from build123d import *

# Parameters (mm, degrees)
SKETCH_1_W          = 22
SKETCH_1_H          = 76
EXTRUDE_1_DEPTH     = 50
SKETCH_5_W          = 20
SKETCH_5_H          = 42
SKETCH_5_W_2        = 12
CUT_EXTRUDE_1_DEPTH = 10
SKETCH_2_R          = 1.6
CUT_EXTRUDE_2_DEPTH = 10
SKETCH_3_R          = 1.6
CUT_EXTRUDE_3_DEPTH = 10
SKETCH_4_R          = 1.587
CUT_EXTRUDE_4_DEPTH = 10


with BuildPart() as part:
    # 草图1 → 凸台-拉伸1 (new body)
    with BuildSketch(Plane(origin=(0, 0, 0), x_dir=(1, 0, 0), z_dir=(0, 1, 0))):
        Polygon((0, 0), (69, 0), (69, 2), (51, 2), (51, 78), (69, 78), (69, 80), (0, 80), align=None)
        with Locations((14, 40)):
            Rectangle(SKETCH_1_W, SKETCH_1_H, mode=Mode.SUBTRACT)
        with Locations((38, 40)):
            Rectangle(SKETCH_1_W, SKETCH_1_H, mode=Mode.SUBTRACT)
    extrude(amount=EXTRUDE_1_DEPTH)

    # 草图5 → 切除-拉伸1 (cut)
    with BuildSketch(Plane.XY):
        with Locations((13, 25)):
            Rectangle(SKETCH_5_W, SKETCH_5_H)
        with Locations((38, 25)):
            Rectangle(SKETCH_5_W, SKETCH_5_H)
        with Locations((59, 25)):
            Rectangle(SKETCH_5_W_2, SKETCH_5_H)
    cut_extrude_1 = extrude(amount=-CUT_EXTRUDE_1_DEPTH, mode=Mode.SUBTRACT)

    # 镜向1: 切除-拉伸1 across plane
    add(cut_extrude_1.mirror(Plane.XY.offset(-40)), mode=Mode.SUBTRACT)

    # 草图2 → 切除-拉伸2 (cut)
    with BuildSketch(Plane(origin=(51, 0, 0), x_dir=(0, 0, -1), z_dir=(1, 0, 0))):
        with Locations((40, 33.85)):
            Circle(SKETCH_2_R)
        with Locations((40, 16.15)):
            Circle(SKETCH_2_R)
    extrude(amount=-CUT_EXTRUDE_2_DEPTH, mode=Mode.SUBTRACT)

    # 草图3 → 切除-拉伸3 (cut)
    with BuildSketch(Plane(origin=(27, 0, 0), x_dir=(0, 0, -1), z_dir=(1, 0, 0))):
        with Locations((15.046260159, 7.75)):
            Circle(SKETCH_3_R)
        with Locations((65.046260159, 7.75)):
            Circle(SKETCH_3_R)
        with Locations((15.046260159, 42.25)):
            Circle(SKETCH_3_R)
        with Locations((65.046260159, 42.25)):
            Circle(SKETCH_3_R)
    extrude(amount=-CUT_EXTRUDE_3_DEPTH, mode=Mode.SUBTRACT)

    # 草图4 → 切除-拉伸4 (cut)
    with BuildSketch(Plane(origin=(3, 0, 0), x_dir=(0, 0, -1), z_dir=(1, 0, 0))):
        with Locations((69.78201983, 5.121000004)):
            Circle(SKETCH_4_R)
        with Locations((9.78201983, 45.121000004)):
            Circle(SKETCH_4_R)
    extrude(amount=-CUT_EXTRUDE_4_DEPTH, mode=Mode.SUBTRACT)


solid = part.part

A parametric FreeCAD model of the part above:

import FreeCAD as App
import Part
import Sketcher
from FreeCAD import Vector
Q = App.Units.Quantity

doc = App.newDocument("Part")
params = doc.addObject("Spreadsheet::Sheet", "Params")
for row, (alias, value) in enumerate([
    ("sketch1_width", "69 mm"),
    ("sketch1_width2", "18 mm"),
    ("sketch1_width3", "22 mm"),
    ("sketch1_height", "2 mm"),
    ("sketch1_height2", "76 mm"),
    ("pad1_length", "50 mm"),
    ("sketch2_width", "20 mm"),
    ("sketch2_width2", "12 mm"),
    ("sketch2_height", "42 mm"),
    ("pocket1_length", "10 mm"),
    ("sketch3_diameter", "3.2 mm"),
    ("pocket2_length", "10 mm"),
    ("sketch4_diameter", "3.2 mm"),
    ("pocket3_length", "10 mm"),
    ("pocket4_length", "10 mm"),
], start=1):
    params.set(f"A{row}", alias)
    params.set(f"B{row}", "=" + value)
    params.setAlias(f"B{row}", alias)

body = doc.addObject("PartDesign::Body", "Body")

# Sketch on XZ plane
sketch1 = body.newObject("Sketcher::SketchObject", "Sketch")
sketch1.AttachmentSupport = (doc.getObject("XZ_Plane"), [""])
sketch1.MapMode = "FlatFace"
sketch1.addGeometry([
    Part.LineSegment(Vector(0, 0, 0), Vector(69, 0, 0)),  # 0
    Part.LineSegment(Vector(69, 0, 0), Vector(69, -2, 0)),  # 1
    Part.LineSegment(Vector(69, -2, 0), Vector(51, -2, 0)),  # 2
    Part.LineSegment(Vector(51, -2, 0), Vector(51, -78, 0)),  # 3
    Part.LineSegment(Vector(51, -78, 0), Vector(69, -78, 0)),  # 4
    Part.LineSegment(Vector(69, -78, 0), Vector(69, -80, 0)),  # 5
    Part.LineSegment(Vector(69, -80, 0), Vector(0, -80, 0)),  # 6
    Part.LineSegment(Vector(0, -80, 0), Vector(0, 0, 0)),  # 7
    Part.LineSegment(Vector(25, -2, 0), Vector(3, -2, 0)),  # 8
    Part.LineSegment(Vector(3, -2, 0), Vector(3, -78, 0)),  # 9
    Part.LineSegment(Vector(3, -78, 0), Vector(25, -78, 0)),  # 10
    Part.LineSegment(Vector(25, -78, 0), Vector(25, -2, 0)),  # 11
    Part.LineSegment(Vector(49, -2, 0), Vector(27, -2, 0)),  # 12
    Part.LineSegment(Vector(27, -2, 0), Vector(27, -78, 0)),  # 13
    Part.LineSegment(Vector(27, -78, 0), Vector(49, -78, 0)),  # 14
    Part.LineSegment(Vector(49, -78, 0), Vector(49, -2, 0)),  # 15
], False)
sketch1.addConstraint([
    Sketcher.Constraint("Coincident", 0, 2, 1, 1),
    Sketcher.Constraint("Coincident", 1, 2, 2, 1),
    Sketcher.Constraint("Coincident", 2, 2, 3, 1),
    Sketcher.Constraint("Coincident", 3, 2, 4, 1),
    Sketcher.Constraint("Coincident", 4, 2, 5, 1),
    Sketcher.Constraint("Coincident", 5, 2, 6, 1),
    Sketcher.Constraint("Coincident", 6, 2, 7, 1),
    Sketcher.Constraint("Coincident", 7, 2, 0, 1),
    Sketcher.Constraint("Coincident", 8, 2, 9, 1),
    Sketcher.Constraint("Coincident", 9, 2, 10, 1),
    Sketcher.Constraint("Coincident", 10, 2, 11, 1),
    Sketcher.Constraint("Coincident", 11, 2, 8, 1),
    Sketcher.Constraint("Coincident", 12, 2, 13, 1),
    Sketcher.Constraint("Coincident", 13, 2, 14, 1),
    Sketcher.Constraint("Coincident", 14, 2, 15, 1),
    Sketcher.Constraint("Coincident", 15, 2, 12, 1),
    Sketcher.Constraint("Horizontal", 0),
    Sketcher.Constraint("Vertical", 1),
    Sketcher.Constraint("Horizontal", 2),
    Sketcher.Constraint("Vertical", 3),
    Sketcher.Constraint("Horizontal", 4),
    Sketcher.Constraint("Vertical", 5),
    Sketcher.Constraint("Horizontal", 6),
    Sketcher.Constraint("Vertical", 7),
    Sketcher.Constraint("Horizontal", 8),
    Sketcher.Constraint("Vertical", 9),
    Sketcher.Constraint("Horizontal", 10),
    Sketcher.Constraint("Vertical", 11),
    Sketcher.Constraint("Horizontal", 12),
    Sketcher.Constraint("Vertical", 13),
    Sketcher.Constraint("Horizontal", 14),
    Sketcher.Constraint("Vertical", 15),
    Sketcher.Constraint("Coincident", 7, 2, -1, 1),
    Sketcher.Constraint("Horizontal", 2, 2, 8, 2),
    Sketcher.Constraint("Horizontal", 4, 2, 9, 2),
    Sketcher.Constraint("Horizontal", 11, 2, 12, 2),
    Sketcher.Constraint("Horizontal", 10, 2, 13, 2),
    Sketcher.Constraint("Vertical", 1, 2, 4, 2),
    Sketcher.Constraint("Equal", 10, 12),
    Sketcher.Constraint("Equal", 1, 5),
    Sketcher.Constraint("DistanceX", 0, 1, 0, 2, Q("69 mm")),
    Sketcher.Constraint("DistanceX", 2, 2, 2, 1, Q("18 mm")),
    Sketcher.Constraint("DistanceX", 8, 2, 8, 1, Q("22 mm")),
    Sketcher.Constraint("DistanceY", 1, 2, 1, 1, Q("2 mm")),
    Sketcher.Constraint("DistanceY", 3, 2, 3, 1, Q("76 mm")),
    Sketcher.Constraint("DistanceX", -1, 1, 8, 2, Q("3 mm")),
    Sketcher.Constraint("DistanceX", -1, 1, 12, 2, Q("27 mm")),
])
sketch1.setExpression("Constraints[40]", "Params.sketch1_width")
sketch1.setExpression("Constraints[41]", "Params.sketch1_width2")
sketch1.setExpression("Constraints[42]", "Params.sketch1_width3")
sketch1.setExpression("Constraints[43]", "Params.sketch1_height")
sketch1.setExpression("Constraints[44]", "Params.sketch1_height2")
pad1 = body.newObject("PartDesign::Pad", "Pad")
pad1.Profile = sketch1
pad1.setExpression("Length", "Params.pad1_length")
pad1.Reversed = True

# Sketch on XY plane
sketch2 = body.newObject("Sketcher::SketchObject", "Sketch001")
sketch2.AttachmentSupport = (doc.getObject("XY_Plane"), [""])
sketch2.MapMode = "FlatFace"
sketch2.addGeometry([
    Part.LineSegment(Vector(3, 46, 0), Vector(3, 4, 0)),  # 0
    Part.LineSegment(Vector(3, 4, 0), Vector(23, 4, 0)),  # 1
    Part.LineSegment(Vector(23, 4, 0), Vector(23, 46, 0)),  # 2
    Part.LineSegment(Vector(23, 46, 0), Vector(3, 46, 0)),  # 3
    Part.LineSegment(Vector(28, 46, 0), Vector(28, 4, 0)),  # 4
    Part.LineSegment(Vector(28, 4, 0), Vector(48, 4, 0)),  # 5
    Part.LineSegment(Vector(48, 4, 0), Vector(48, 46, 0)),  # 6
    Part.LineSegment(Vector(48, 46, 0), Vector(28, 46, 0)),  # 7
    Part.LineSegment(Vector(53, 46, 0), Vector(53, 4, 0)),  # 8
    Part.LineSegment(Vector(53, 4, 0), Vector(65, 4, 0)),  # 9
    Part.LineSegment(Vector(65, 4, 0), Vector(65, 46, 0)),  # 10
    Part.LineSegment(Vector(65, 46, 0), Vector(53, 46, 0)),  # 11
], False)
sketch2.addConstraint([
    Sketcher.Constraint("Coincident", 0, 2, 1, 1),
    Sketcher.Constraint("Coincident", 1, 2, 2, 1),
    Sketcher.Constraint("Coincident", 2, 2, 3, 1),
    Sketcher.Constraint("Coincident", 3, 2, 0, 1),
    Sketcher.Constraint("Coincident", 4, 2, 5, 1),
    Sketcher.Constraint("Coincident", 5, 2, 6, 1),
    Sketcher.Constraint("Coincident", 6, 2, 7, 1),
    Sketcher.Constraint("Coincident", 7, 2, 4, 1),
    Sketcher.Constraint("Coincident", 8, 2, 9, 1),
    Sketcher.Constraint("Coincident", 9, 2, 10, 1),
    Sketcher.Constraint("Coincident", 10, 2, 11, 1),
    Sketcher.Constraint("Coincident", 11, 2, 8, 1),
    Sketcher.Constraint("Vertical", 0),
    Sketcher.Constraint("Horizontal", 1),
    Sketcher.Constraint("Vertical", 2),
    Sketcher.Constraint("Horizontal", 3),
    Sketcher.Constraint("Vertical", 4),
    Sketcher.Constraint("Horizontal", 5),
    Sketcher.Constraint("Vertical", 6),
    Sketcher.Constraint("Horizontal", 7),
    Sketcher.Constraint("Vertical", 8),
    Sketcher.Constraint("Horizontal", 9),
    Sketcher.Constraint("Vertical", 10),
    Sketcher.Constraint("Horizontal", 11),
    Sketcher.Constraint("Horizontal", 1, 2, 4, 2),
    Sketcher.Constraint("Horizontal", 3, 2, 6, 2),
    Sketcher.Constraint("Horizontal", 5, 2, 8, 2),
    Sketcher.Constraint("Horizontal", 7, 2, 10, 2),
    Sketcher.Constraint("Equal", 3, 5),
    Sketcher.Constraint("DistanceX", 1, 1, 1, 2, Q("20 mm")),
    Sketcher.Constraint("DistanceX", 9, 1, 9, 2, Q("12 mm")),
    Sketcher.Constraint("DistanceY", 0, 2, 0, 1, Q("42 mm")),
    Sketcher.Constraint("DistanceX", -1, 1, 0, 2, Q("3 mm")),
    Sketcher.Constraint("DistanceY", -1, 1, 0, 2, Q("4 mm")),
    Sketcher.Constraint("DistanceX", -1, 1, 4, 2, Q("28 mm")),
    Sketcher.Constraint("DistanceX", -1, 1, 8, 2, Q("53 mm")),
])
sketch2.setExpression("Constraints[29]", "Params.sketch2_width")
sketch2.setExpression("Constraints[30]", "Params.sketch2_width2")
sketch2.setExpression("Constraints[31]", "Params.sketch2_height")
pocket1 = body.newObject("PartDesign::Pocket", "Pocket")
pocket1.Profile = sketch2
pocket1.setExpression("Length", "Params.pocket1_length")
doc.recompute()

datumplane = body.newObject("PartDesign::Plane", "DatumPlane")
datumplane.AttachmentSupport = (doc.getObject("XY_Plane"), [""])
datumplane.MapMode = "FlatFace"
datumplane.AttachmentOffset = App.Placement(Vector(0, 0, -40), App.Rotation())
mirrored = body.newObject("PartDesign::Mirrored", "Mirrored")
mirrored.Originals = [pocket1]
mirrored.MirrorPlane = (datumplane, [""])
body.Tip = mirrored

# Sketch on YZ plane
sketch3 = body.newObject("Sketcher::SketchObject", "Sketch002")
sketch3.AttachmentSupport = (doc.getObject("YZ_Plane"), [""])
sketch3.MapMode = "FlatFace"
sketch3.AttachmentOffset = App.Placement(Vector(0, 0, 51), App.Rotation())
sketch3.addGeometry([
    Part.Circle(Vector(33.85, -40, 0), Vector(0, 0, 1), 1.6),
    Part.Circle(Vector(16.15, -40, 0), Vector(0, 0, 1), 1.6),
], False)
sketch3.addConstraint([
    Sketcher.Constraint("Equal", 0, 1),
    Sketcher.Constraint("Horizontal", 0, 3, 1, 3),
    Sketcher.Constraint("Diameter", 0, Q("3.2 mm")),
    Sketcher.Constraint("DistanceY", 0, 3, -1, 1, Q("40 mm")),
    Sketcher.Constraint("DistanceX", 1, 3, 0, 3, Q("17.7 mm")),
    Sketcher.Constraint("DistanceX", -1, 1, 0, 3, Q("33.85 mm")),
])
sketch3.setExpression("Constraints[2]", "Params.sketch3_diameter")
pocket2 = body.newObject("PartDesign::Pocket", "Pocket001")
pocket2.Profile = sketch3
pocket2.setExpression("Length", "Params.pocket2_length")

# Sketch on YZ plane
sketch4 = body.newObject("Sketcher::SketchObject", "Sketch003")
sketch4.AttachmentSupport = (doc.getObject("YZ_Plane"), [""])
sketch4.MapMode = "FlatFace"
sketch4.AttachmentOffset = App.Placement(Vector(0, 0, 27), App.Rotation())
sketch4.addGeometry([
    Part.Circle(Vector(7.75, -15.04626, 0), Vector(0, 0, 1), 1.6),
    Part.Circle(Vector(7.75, -65.04626, 0), Vector(0, 0, 1), 1.6),
    Part.Circle(Vector(42.25, -15.04626, 0), Vector(0, 0, 1), 1.6),
    Part.Circle(Vector(42.25, -65.04626, 0), Vector(0, 0, 1), 1.6),
], False)
sketch4.addConstraint([
    Sketcher.Constraint("Equal", 0, 1),
    Sketcher.Constraint("Equal", 1, 2),
    Sketcher.Constraint("Equal", 2, 3),
    Sketcher.Constraint("Horizontal", 0, 3, 2, 3),
    Sketcher.Constraint("Horizontal", 1, 3, 3, 3),
    Sketcher.Constraint("Vertical", 0, 3, 1, 3),
    Sketcher.Constraint("Vertical", 2, 3, 3, 3),
    Sketcher.Constraint("Diameter", 0, Q("3.2 mm")),
    Sketcher.Constraint("DistanceY", 1, 3, 0, 3, Q("50 mm")),
    Sketcher.Constraint("DistanceX", 0, 3, 2, 3, Q("34.5 mm")),
    Sketcher.Constraint("DistanceX", -1, 1, 0, 3, Q("7.75 mm")),
    Sketcher.Constraint("DistanceY", 0, 3, -1, 1, Q("15.04626 mm")),
])
sketch4.setExpression("Constraints[7]", "Params.sketch4_diameter")
pocket3 = body.newObject("PartDesign::Pocket", "Pocket002")
pocket3.Profile = sketch4
pocket3.setExpression("Length", "Params.pocket3_length")

# Sketch on YZ plane
sketch5 = body.newObject("Sketcher::SketchObject", "Sketch004")
sketch5.AttachmentSupport = (doc.getObject("YZ_Plane"), [""])
sketch5.MapMode = "FlatFace"
sketch5.AttachmentOffset = App.Placement(Vector(0, 0, 3), App.Rotation())
sketch5.addGeometry([
    Part.Circle(Vector(5.121, -69.78202, 0), Vector(0, 0, 1), 1.587),
    Part.Circle(Vector(45.121, -9.78202, 0), Vector(0, 0, 1), 1.587),
], False)
sketch5.addConstraint([
    Sketcher.Constraint("Equal", 0, 1),
    Sketcher.Constraint("Diameter", 0, Q("3.174 mm")),
    Sketcher.Constraint("DistanceX", 0, 3, 1, 3, Q("40 mm")),
    Sketcher.Constraint("DistanceY", 0, 3, 1, 3, Q("60 mm")),
    Sketcher.Constraint("DistanceX", -1, 1, 0, 3, Q("5.121 mm")),
    Sketcher.Constraint("DistanceY", 0, 3, -1, 1, Q("69.78202 mm")),
])
pocket4 = body.newObject("PartDesign::Pocket", "Pocket003")
pocket4.Profile = sketch5
pocket4.setExpression("Length", "Params.pocket4_length")

doc.recompute()
